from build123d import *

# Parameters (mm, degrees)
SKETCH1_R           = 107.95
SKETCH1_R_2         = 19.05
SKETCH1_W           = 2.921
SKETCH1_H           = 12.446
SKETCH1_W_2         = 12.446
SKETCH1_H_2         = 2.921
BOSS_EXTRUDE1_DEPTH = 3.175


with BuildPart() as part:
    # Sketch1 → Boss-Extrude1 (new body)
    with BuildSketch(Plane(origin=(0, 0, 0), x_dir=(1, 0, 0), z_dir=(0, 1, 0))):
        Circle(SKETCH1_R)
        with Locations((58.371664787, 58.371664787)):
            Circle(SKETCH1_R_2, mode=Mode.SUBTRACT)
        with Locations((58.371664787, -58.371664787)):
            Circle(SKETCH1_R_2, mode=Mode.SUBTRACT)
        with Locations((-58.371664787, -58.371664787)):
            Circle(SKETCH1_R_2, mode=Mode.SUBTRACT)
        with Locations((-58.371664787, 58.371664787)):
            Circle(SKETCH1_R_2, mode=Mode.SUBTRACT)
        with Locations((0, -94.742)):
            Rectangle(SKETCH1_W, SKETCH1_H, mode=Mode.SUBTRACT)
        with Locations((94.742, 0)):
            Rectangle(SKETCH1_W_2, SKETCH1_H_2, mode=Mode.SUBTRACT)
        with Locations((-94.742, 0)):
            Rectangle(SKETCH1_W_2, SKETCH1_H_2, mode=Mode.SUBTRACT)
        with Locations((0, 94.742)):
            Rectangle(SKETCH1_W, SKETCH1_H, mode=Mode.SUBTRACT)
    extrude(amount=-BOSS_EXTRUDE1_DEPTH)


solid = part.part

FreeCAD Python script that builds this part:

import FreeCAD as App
import Part
import Sketcher

V = App.Vector
Q = App.Units.Quantity


def add_polygon(sketch, points):
    """Adds a closed chain of lines whose ends are joined by coincident constraints."""
    first, n = sketch.GeometryCount, len(points)
    for a, b in zip(points, points[1:] + points[:1]):
        sketch.addGeometry(Part.LineSegment(App.Vector(*a, 0), App.Vector(*b, 0)), False)
    for i in range(n):
        sketch.addConstraint(Sketcher.Constraint("Coincident", first + i, 2, first + (i + 1) % n, 1))

doc = App.newDocument("Part")
params = doc.addObject("Spreadsheet::Sheet", "Params")
for row, (alias, value) in enumerate([
    ("sketch1_diameter", "8.5 in"),
    ("sketch1_diameter2", "1.5 in"),
    ("sketch1_width", "0.49 in"),
    ("sketch1_width2", "0.115 in"),
    ("pad1_length", "0.125 in"),
], start=1):
    params.set(f"A{row}", alias)
    params.set(f"B{row}", "=" + value)
    params.setAlias(f"B{row}", alias)

body = doc.addObject("PartDesign::Body", "Body")

# Sketch on XZ plane
sketch1 = doc.addObject("Sketcher::SketchObject", "Sketch")
body.addObject(sketch1)
sketch1.AttachmentSupport = (doc.XZ_Plane, [""])
sketch1.MapMode = "FlatFace"
sketch1.addGeometry(Part.Circle(V(0, 0, 0), V(0, 0, 1), 108), False)  # 0
sketch1.addGeometry(Part.Circle(V(-58.4, 58.4, 0), V(0, 0, 1), 19.1), False)  # 1
add_polygon(sketch1, [(1.5, 101), (-1.5, 101), (-1.5, 88.5), (1.5, 88.5)])  # lines 2-5
sketch1.addGeometry(Part.Circle(V(58.4, 58.4, 0), V(0, 0, 1), 19.1), False)  # 6
add_polygon(sketch1, [(-88.5, 1.5), (-101, 1.5), (-101, -1.5), (-88.5, -1.5)])  # lines 7-10
sketch1.addGeometry(Part.Circle(V(-58.4, -58.4, 0), V(0, 0, 1), 19.1), False)  # 11
add_polygon(sketch1, [(101, 1.5), (88.5, 1.5), (88.5, -1.5), (101, -1.5)])  # lines 12-15
add_polygon(sketch1, [(1.5, -88.5), (-1.5, -88.5), (-1.5, -101), (1.5, -101)])  # lines 16-19
sketch1.addGeometry(Part.Circle(V(58.4, -58.4, 0), V(0, 0, 1), 19.1), False)  # 20
sketch1.addConstraint([
    Sketcher.Constraint("Horizontal", 2),
    Sketcher.Constraint("Vertical", 3),
    Sketcher.Constraint("Horizontal", 4),
    Sketcher.Constraint("Vertical", 5),
    Sketcher.Constraint("Horizontal", 7),
    Sketcher.Constraint("Vertical", 8),
    Sketcher.Constraint("Horizontal", 9),
    Sketcher.Constraint("Vertical", 10),
    Sketcher.Constraint("Horizontal", 12),
    Sketcher.Constraint("Vertical", 13),
    Sketcher.Constraint("Horizontal", 14),
    Sketcher.Constraint("Vertical", 15),
    Sketcher.Constraint("Horizontal", 16),
    Sketcher.Constraint("Vertical", 17),
    Sketcher.Constraint("Horizontal", 18),
    Sketcher.Constraint("Vertical", 19),
    Sketcher.Constraint("Coincident", 0, 3, -1, 1),
    Sketcher.Constraint("Equal", 1, 6),
    Sketcher.Constraint("Equal", 6, 11),
    Sketcher.Constraint("Equal", 11, 20),
    Sketcher.Constraint("Symmetric", 6, 3, 11, 3, -1, 1),
    Sketcher.Constraint("Symmetric", 1, 3, 20, 3, -1, 1),
    Sketcher.Constraint("Symmetric", 9, 2, 12, 2, -1, 1),
    Sketcher.Constraint("Symmetric", 7, 2, 14, 2, -1, 1),
    Sketcher.Constraint("Symmetric", 4, 2, 16, 2, -1, 1),
    Sketcher.Constraint("Symmetric", 2, 2, 18, 2, -1, 1),
    Sketcher.Constraint("Symmetric", 1, 3, 6, 3, -2),
    Sketcher.Constraint("Horizontal", 10, 2, 12, 2),
    Sketcher.Constraint("Vertical", 3, 2, 16, 2),
    Sketcher.Constraint("Equal", 14, 3),
    Sketcher.Constraint("Equal", 18, 8),
    Sketcher.Constraint("Diameter", 0, Q("8.5 in")),
    Sketcher.Constraint("Diameter", 1, Q("1.5 in")),
    Sketcher.Constraint("DistanceX", 7, 2, 7, 1, Q("0.49 in")),
    Sketcher.Constraint("DistanceX", 2, 2, 2, 1, Q("0.115 in")),
    Sketcher.Constraint("DistanceY", -1, 1, 2, 2, Q("3.975 in")),
    Sketcher.Constraint("DistanceX", 7, 2, -1, 1, Q("3.975 in")),
    Sketcher.Constraint("DistanceX", 1, 3, 6, 3, Q("116.74333 mm")),
    Sketcher.Constraint("DistanceY", 11, 3, 1, 3, Q("116.74333 mm")),
])
sketch1.setExpression("Constraints[47]", "Params.sketch1_diameter")
sketch1.setExpression("Constraints[48]", "Params.sketch1_diameter2")
sketch1.setExpression("Constraints[49]", "Params.sketch1_width")
sketch1.setExpression("Constraints[50]", "Params.sketch1_width2")
pad1 = doc.addObject("PartDesign::Pad", "Pad")
body.addObject(pad1)
pad1.Profile = sketch1
pad1.setExpression("Length", "Params.pad1_length")

doc.recompute()
